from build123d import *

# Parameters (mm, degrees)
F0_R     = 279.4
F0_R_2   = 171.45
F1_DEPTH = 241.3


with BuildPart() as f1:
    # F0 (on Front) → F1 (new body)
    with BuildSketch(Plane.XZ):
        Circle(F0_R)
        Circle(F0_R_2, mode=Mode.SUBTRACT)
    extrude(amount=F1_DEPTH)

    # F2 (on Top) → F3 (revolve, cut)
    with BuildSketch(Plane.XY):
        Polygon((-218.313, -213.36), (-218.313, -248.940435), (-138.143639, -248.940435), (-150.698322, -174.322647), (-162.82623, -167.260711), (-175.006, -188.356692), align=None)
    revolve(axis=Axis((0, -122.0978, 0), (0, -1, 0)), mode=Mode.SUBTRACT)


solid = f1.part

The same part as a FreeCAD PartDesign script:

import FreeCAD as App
import Part
import Sketcher
from FreeCAD import Vector
Q = App.Units.Quantity

doc = App.newDocument("Part")
params = doc.addObject("Spreadsheet::Sheet", "Params")
for row, (alias, value) in enumerate([
    ("sketch1_diameter", "22 in"),
    ("sketch1_diameter2", "13.5 in"),
    ("pad1_length", "9.5 in"),
    ("sketch2_length", "2.979 in"),
    ("groove_angle", "360 deg"),
], start=1):
    params.set(f"A{row}", alias)
    params.set(f"B{row}", "=" + value)
    params.setAlias(f"B{row}", alias)

body = doc.addObject("PartDesign::Body", "Body")

sketch1 = doc.addObject("Sketcher::SketchObject", "Sketch")
body.addObject(sketch1)
sketch1.AttachmentSupport = (doc.XZ_Plane, [""])
sketch1.MapMode = "FlatFace"
sketch1.addGeometry([
    Part.Circle(Vector(0, 0, 0), Vector(0, 0, 1), 279),
    Part.Circle(Vector(0, 0, 0), Vector(0, 0, 1), 171),
], False)
sketch1.addConstraint([
    Sketcher.Constraint("Coincident", 0, 3, -1, 1),
    Sketcher.Constraint("Coincident", 1, 3, -1, 1),
    Sketcher.Constraint("Diameter", 0, Q("22 in")),
    Sketcher.Constraint("Diameter", 1, Q("13.5 in")),
])
sketch1.setExpression("Constraints[2]", "Params.sketch1_diameter")
sketch1.setExpression("Constraints[3]", "Params.sketch1_diameter2")
pad1 = doc.addObject("PartDesign::Pad", "Pad")
body.addObject(pad1)
pad1.Profile = sketch1
pad1.setExpression("Length", "Params.pad1_length")

sketch2 = doc.addObject("Sketcher::SketchObject", "Sketch001")
body.addObject(sketch2)
sketch2.AttachmentSupport = (doc.XY_Plane, [""])
sketch2.MapMode = "FlatFace"
sketch2.addGeometry([
    Part.LineSegment(Vector(-218, -213, 0), Vector(-218, -249, 0)),
    Part.LineSegment(Vector(-218, -249, 0), Vector(-138, -249, 0)),
    Part.LineSegment(Vector(-138, -249, 0), Vector(-151, -174, 0)),
    Part.LineSegment(Vector(-151, -174, 0), Vector(-163, -167, 0)),
    Part.LineSegment(Vector(-163, -167, 0), Vector(-175, -188, 0)),
    Part.LineSegment(Vector(-175, -188, 0), Vector(-218, -213, 0)),
], False)
sketch2.addConstraint([
    Sketcher.Constraint("Coincident", 0, 2, 1, 1),
    Sketcher.Constraint("Coincident", 1, 2, 2, 1),
    Sketcher.Constraint("Coincident", 2, 2, 3, 1),
    Sketcher.Constraint("Coincident", 3, 2, 4, 1),
    Sketcher.Constraint("Coincident", 4, 2, 5, 1),
    Sketcher.Constraint("Coincident", 5, 2, 0, 1),
    Sketcher.Constraint("Vertical", 0),
    Sketcher.Constraint("Horizontal", 1),
    Sketcher.Constraint("Angle", 4, Q("-119.999999 deg")),
    Sketcher.Constraint("Angle", 5, Q("-150 deg")),
    Sketcher.Constraint("DistanceY", 5, 2, -1, 1, Q("8.4 in")),
    Sketcher.Constraint("DistanceX", 4, 2, -1, 1, Q("6.89 in")),
    Sketcher.Constraint("Distance", 2, Q("2.979 in")),
    Sketcher.Constraint("DistanceX", 0, 2, -1, 1, Q("8.595 in")),
    Sketcher.Constraint("DistanceX", 1, 1, 1, 2, 80.169361),
    Sketcher.Constraint("Distance", 3, 14.03414),
    Sketcher.Constraint("Distance", 4, 24.35954),
    Sketcher.Constraint("DistanceY", 0, 2, 0, 1, 35.580435),
])
sketch2.setExpression("Constraints[12]", "Params.sketch2_length")
groove = doc.addObject("PartDesign::Groove", "Groove")
body.addObject(groove)
groove.Profile = sketch2
groove.ReferenceAxis = (sketch2, ["V_Axis"])
groove.setExpression("Angle", "Params.groove_angle")

doc.recompute()
